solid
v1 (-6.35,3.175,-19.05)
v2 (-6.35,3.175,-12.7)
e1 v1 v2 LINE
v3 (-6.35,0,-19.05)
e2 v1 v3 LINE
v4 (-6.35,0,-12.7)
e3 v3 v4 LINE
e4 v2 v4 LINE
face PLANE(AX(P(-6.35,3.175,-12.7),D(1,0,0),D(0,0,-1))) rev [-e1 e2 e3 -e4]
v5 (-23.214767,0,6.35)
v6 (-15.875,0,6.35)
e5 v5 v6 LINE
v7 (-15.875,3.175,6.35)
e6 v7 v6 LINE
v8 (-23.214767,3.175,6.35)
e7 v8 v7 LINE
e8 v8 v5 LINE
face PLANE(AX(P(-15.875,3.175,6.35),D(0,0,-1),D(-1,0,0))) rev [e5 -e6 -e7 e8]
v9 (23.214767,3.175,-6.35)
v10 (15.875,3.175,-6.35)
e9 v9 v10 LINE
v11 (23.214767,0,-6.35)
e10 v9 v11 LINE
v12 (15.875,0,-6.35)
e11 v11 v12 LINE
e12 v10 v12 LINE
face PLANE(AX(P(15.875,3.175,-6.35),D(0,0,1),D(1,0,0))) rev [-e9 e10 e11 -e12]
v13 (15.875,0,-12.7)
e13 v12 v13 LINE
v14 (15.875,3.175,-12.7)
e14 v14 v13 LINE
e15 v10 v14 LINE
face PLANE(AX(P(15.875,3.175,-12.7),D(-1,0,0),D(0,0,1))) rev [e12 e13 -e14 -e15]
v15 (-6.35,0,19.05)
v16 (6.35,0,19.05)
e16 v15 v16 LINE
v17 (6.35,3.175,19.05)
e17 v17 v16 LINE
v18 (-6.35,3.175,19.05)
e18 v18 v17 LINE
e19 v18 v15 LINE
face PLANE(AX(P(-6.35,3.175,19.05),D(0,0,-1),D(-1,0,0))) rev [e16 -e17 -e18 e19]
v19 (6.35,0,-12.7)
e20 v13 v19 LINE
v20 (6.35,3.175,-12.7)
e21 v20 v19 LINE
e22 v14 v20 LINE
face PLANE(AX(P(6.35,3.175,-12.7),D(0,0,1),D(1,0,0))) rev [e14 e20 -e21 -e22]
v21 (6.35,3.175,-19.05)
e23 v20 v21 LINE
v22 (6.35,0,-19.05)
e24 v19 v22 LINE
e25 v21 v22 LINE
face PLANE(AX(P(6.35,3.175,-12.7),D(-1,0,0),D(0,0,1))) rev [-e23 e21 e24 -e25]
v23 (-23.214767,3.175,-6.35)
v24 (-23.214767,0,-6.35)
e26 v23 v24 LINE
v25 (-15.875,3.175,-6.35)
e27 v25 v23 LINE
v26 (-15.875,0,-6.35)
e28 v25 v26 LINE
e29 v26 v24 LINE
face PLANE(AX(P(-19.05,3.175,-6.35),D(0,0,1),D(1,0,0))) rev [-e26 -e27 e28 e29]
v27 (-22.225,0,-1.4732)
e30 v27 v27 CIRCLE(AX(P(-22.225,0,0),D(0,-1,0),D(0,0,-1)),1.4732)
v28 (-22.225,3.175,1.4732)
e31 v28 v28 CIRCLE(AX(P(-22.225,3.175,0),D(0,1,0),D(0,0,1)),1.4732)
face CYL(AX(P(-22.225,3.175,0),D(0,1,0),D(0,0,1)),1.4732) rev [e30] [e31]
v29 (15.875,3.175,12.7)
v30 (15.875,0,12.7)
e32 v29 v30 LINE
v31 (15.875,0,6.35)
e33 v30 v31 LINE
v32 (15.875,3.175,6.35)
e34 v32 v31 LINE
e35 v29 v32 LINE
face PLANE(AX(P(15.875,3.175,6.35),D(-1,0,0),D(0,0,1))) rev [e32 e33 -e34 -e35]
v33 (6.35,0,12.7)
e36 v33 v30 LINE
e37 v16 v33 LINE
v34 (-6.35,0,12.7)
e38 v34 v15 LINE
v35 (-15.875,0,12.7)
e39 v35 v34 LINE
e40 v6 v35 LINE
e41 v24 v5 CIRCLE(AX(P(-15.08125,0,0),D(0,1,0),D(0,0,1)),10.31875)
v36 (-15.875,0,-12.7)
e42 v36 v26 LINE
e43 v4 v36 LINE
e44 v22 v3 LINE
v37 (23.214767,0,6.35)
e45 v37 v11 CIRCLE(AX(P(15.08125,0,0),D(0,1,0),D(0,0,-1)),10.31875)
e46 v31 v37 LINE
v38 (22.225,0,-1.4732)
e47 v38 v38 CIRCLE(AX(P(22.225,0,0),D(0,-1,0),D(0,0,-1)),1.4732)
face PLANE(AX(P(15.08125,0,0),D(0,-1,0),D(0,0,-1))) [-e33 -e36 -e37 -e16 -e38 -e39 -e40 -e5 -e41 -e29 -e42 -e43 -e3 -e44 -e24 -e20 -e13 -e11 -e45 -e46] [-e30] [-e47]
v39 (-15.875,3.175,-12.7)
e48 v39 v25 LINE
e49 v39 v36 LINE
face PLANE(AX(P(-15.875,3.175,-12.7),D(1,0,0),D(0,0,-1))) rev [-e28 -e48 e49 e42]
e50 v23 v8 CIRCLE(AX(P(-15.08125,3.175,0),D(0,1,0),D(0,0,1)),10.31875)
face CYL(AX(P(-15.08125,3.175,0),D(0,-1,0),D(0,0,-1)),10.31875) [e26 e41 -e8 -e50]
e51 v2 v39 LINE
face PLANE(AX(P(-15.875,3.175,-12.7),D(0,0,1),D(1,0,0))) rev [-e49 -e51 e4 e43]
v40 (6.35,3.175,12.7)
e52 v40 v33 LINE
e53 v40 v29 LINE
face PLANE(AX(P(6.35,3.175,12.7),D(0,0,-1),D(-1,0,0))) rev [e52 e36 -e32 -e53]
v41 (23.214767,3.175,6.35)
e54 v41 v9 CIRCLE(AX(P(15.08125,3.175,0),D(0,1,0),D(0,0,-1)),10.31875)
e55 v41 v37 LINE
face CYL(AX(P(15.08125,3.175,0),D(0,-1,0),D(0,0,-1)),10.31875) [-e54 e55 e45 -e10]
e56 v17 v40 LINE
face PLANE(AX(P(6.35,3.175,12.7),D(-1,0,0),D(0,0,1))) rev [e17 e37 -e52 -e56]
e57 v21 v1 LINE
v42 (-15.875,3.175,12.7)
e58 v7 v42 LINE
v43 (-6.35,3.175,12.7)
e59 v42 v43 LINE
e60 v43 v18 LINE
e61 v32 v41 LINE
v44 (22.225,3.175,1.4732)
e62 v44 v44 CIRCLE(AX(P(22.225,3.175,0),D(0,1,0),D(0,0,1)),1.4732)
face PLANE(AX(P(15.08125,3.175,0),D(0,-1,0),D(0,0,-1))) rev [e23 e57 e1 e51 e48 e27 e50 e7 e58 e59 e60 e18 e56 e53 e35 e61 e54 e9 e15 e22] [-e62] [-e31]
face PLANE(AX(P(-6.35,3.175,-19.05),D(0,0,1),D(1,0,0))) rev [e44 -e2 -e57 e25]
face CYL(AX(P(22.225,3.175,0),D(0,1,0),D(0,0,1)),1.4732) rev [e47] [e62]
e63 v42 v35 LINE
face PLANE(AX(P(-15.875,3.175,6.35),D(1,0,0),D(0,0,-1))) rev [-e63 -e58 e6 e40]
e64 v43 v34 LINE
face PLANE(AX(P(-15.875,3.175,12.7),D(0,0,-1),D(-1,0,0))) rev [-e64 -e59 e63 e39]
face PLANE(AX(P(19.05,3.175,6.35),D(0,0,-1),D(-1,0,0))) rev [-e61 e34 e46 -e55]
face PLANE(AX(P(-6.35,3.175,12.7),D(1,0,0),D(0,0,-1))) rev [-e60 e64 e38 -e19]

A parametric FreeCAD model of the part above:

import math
import FreeCAD as App
import Part
import Sketcher

V = App.Vector
Q = App.Units.Quantity

doc = App.newDocument("Part")
body = doc.addObject("PartDesign::Body", "Body")

sketch1 = doc.addObject("Sketcher::SketchObject", "Sketch")
body.addObject(sketch1)
sketch1.AttachmentSupport = (doc.XZ_Plane, [""])
sketch1.MapMode = "FlatFace"
sketch1.addGeometry(Part.LineSegment(V(-6, -13, 0), V(-16, -13, 0)), False)
sketch1.addGeometry(Part.LineSegment(V(-16, -13, 0), V(-16, -6, 0)), False)
sketch1.addGeometry(Part.LineSegment(V(-16, -6, 0), V(-23, -6, 0)), False)
sketch1.addGeometry(Part.ArcOfCircle(Part.Circle(V(-15, 0, 0), V(0, 0, 1), 10), math.radians(142), math.radians(218)), False)
sketch1.addGeometry(Part.LineSegment(V(-23, 6, 0), V(-16, 6, 0)), False)
sketch1.addGeometry(Part.LineSegment(V(-16, 6, 0), V(-16, 13, 0)), False)
sketch1.addGeometry(Part.LineSegment(V(-16, 13, 0), V(-6, 13, 0)), False)
sketch1.addGeometry(Part.LineSegment(V(-6, 13, 0), V(-6, 19, 0)), False)
sketch1.addGeometry(Part.LineSegment(V(-6, 19, 0), V(6, 19, 0)), False)
sketch1.addGeometry(Part.LineSegment(V(6, 19, 0), V(6, 13, 0)), False)
sketch1.addGeometry(Part.LineSegment(V(6, 13, 0), V(16, 13, 0)), False)
sketch1.addGeometry(Part.LineSegment(V(16, 13, 0), V(16, 6, 0)), False)
sketch1.addGeometry(Part.LineSegment(V(16, 6, 0), V(23, 6, 0)), False)
sketch1.addGeometry(Part.ArcOfCircle(Part.Circle(V(15, 0, 0), V(0, 0, 1), 10), math.radians(-38), math.radians(38)), False)
sketch1.addGeometry(Part.LineSegment(V(23, -6, 0), V(16, -6, 0)), False)
sketch1.addGeometry(Part.LineSegment(V(16, -6, 0), V(16, -13, 0)), False)
sketch1.addGeometry(Part.LineSegment(V(16, -13, 0), V(6, -13, 0)), False)
sketch1.addGeometry(Part.LineSegment(V(6, -13, 0), V(6, -19, 0)), False)
sketch1.addGeometry(Part.LineSegment(V(6, -19, 0), V(-6, -19, 0)), False)
sketch1.addGeometry(Part.LineSegment(V(-6, -19, 0), V(-6, -13, 0)), False)
sketch1.addConstraint(Sketcher.Constraint("Coincident", 0, 2, 1, 1))
sketch1.addConstraint(Sketcher.Constraint("Coincident", 1, 2, 2, 1))
sketch1.addConstraint(Sketcher.Constraint("Coincident", 2, 2, 3, 2))
sketch1.addConstraint(Sketcher.Constraint("Coincident", 3, 1, 4, 1))
sketch1.addConstraint(Sketcher.Constraint("Coincident", 4, 2, 5, 1))
sketch1.addConstraint(Sketcher.Constraint("Coincident", 5, 2, 6, 1))
sketch1.addConstraint(Sketcher.Constraint("Coincident", 6, 2, 7, 1))
sketch1.addConstraint(Sketcher.Constraint("Coincident", 7, 2, 8, 1))
sketch1.addConstraint(Sketcher.Constraint("Coincident", 8, 2, 9, 1))
sketch1.addConstraint(Sketcher.Constraint("Coincident", 9, 2, 10, 1))
sketch1.addConstraint(Sketcher.Constraint("Coincident", 10, 2, 11, 1))
sketch1.addConstraint(Sketcher.Constraint("Coincident", 11, 2, 12, 1))
sketch1.addConstraint(Sketcher.Constraint("Coincident", 12, 2, 13, 2))
sketch1.addConstraint(Sketcher.Constraint("Coincident", 13, 1, 14, 1))
sketch1.addConstraint(Sketcher.Constraint("Coincident", 14, 2, 15, 1))
sketch1.addConstraint(Sketcher.Constraint("Coincident", 15, 2, 16, 1))
sketch1.addConstraint(Sketcher.Constraint("Coincident", 16, 2, 17, 1))
sketch1.addConstraint(Sketcher.Constraint("Coincident", 17, 2, 18, 1))
sketch1.addConstraint(Sketcher.Constraint("Coincident", 18, 2, 19, 1))
sketch1.addConstraint(Sketcher.Constraint("Coincident", 19, 2, 0, 1))
sketch1.addConstraint(Sketcher.Constraint("Horizontal", 0))
sketch1.addConstraint(Sketcher.Constraint("Vertical", 1))
sketch1.addConstraint(Sketcher.Constraint("Horizontal", 2))
sketch1.addConstraint(Sketcher.Constraint("Horizontal", 4))
sketch1.addConstraint(Sketcher.Constraint("Vertical", 5))
sketch1.addConstraint(Sketcher.Constraint("Horizontal", 6))
sketch1.addConstraint(Sketcher.Constraint("Vertical", 7))
sketch1.addConstraint(Sketcher.Constraint("Horizontal", 8))
sketch1.addConstraint(Sketcher.Constraint("Vertical", 9))
sketch1.addConstraint(Sketcher.Constraint("Horizontal", 10))
sketch1.addConstraint(Sketcher.Constraint("Vertical", 11))
sketch1.addConstraint(Sketcher.Constraint("Horizontal", 12))
sketch1.addConstraint(Sketcher.Constraint("Horizontal", 14))
sketch1.addConstraint(Sketcher.Constraint("Vertical", 15))
sketch1.addConstraint(Sketcher.Constraint("Horizontal", 16))
sketch1.addConstraint(Sketcher.Constraint("Vertical", 17))
sketch1.addConstraint(Sketcher.Constraint("Horizontal", 18))
sketch1.addConstraint(Sketcher.Constraint("Vertical", 19))
sketch1.addConstraint(Sketcher.Constraint("Equal", 3, 13))
sketch1.addConstraint(Sketcher.Constraint("Symmetric", 3, 3, 13, 3, -1, 1))
sketch1.addConstraint(Sketcher.Constraint("Symmetric", 0, 2, 10, 2, -1, 1))
sketch1.addConstraint(Sketcher.Constraint("Symmetric", 4, 2, 14, 2, -1, 1))
sketch1.addConstraint(Sketcher.Constraint("Symmetric", 6, 2, 16, 2, -1, 1))
sketch1.addConstraint(Sketcher.Constraint("Symmetric", 8, 2, 18, 2, -1, 1))
sketch1.addConstraint(Sketcher.Constraint("Symmetric", 6, 2, 9, 2, -2))
sketch1.addConstraint(Sketcher.Constraint("Symmetric", 4, 2, 11, 2, -2))
sketch1.addConstraint(Sketcher.Constraint("Symmetric", 2, 2, 13, 1, -2))
sketch1.addConstraint(Sketcher.Constraint("Equal", 5, 7))
sketch1.addConstraint(Sketcher.Constraint("DistanceX", 8, 1, 8, 2, Q("0.5 in")))
sketch1.addConstraint(Sketcher.Constraint("Radius", 3, Q("0.40625 in")))
sketch1.addConstraint(Sketcher.Constraint("DistanceY", 1, 1, 1, 2, Q("0.25 in")))
sketch1.addConstraint(Sketcher.Constraint("DistanceY", 0, 2, -1, 1, Q("0.5 in")))
sketch1.addConstraint(Sketcher.Constraint("DistanceX", 0, 2, 0, 1, Q("0.375 in")))
sketch1.addConstraint(Sketcher.Constraint("DistanceX", 3, 3, -1, 1, Q("0.59375 in")))
pad1 = doc.addObject("PartDesign::Pad", "Pad")
body.addObject(pad1)
pad1.Profile = sketch1
pad1.Length = Q("0.125 in")
pad1.Reversed = True

sketch2 = doc.addObject("Sketcher::SketchObject", "Sketch001")
body.addObject(sketch2)
sketch2.AttachmentSupport = (doc.XZ_Plane, [""])
sketch2.MapMode = "FlatFace"
sketch2.AttachmentOffset = App.Placement(V(0, 0, -0.125 * 25.4), App.Rotation())
sketch2.addGeometry(Part.Circle(V(22.2, 0, 0), V(0, 0, 1), 1.5), False)
sketch2.addGeometry(Part.Circle(V(-22.2, 0, 0), V(0, 0, 1), 1.5), False)
sketch2.addConstraint(Sketcher.Constraint("Equal", 0, 1))
sketch2.addConstraint(Sketcher.Constraint("Symmetric", 0, 3, 1, 3, -1, 1))
sketch2.addConstraint(Sketcher.Constraint("PointOnObject", 0, 3, -1))
sketch2.addConstraint(Sketcher.Constraint("Diameter", 0, Q("0.116 in")))
sketch2.addConstraint(Sketcher.Constraint("DistanceX", 1, 3, 0, 3, Q("1.75 in")))
doc.recompute()
hole = doc.addObject("PartDesign::Hole", "Hole")
body.addObject(hole)
hole.Profile = sketch2
hole.ThreadType = "None"
hole.Diameter = Q("0.116 in")
hole.DepthType = "Dimension"
hole.Depth = Q("0.25 in")
hole.DrillPoint = "Angled"
hole.DrillPointAngle = 118
hole.Reversed = True

doc.recompute()
